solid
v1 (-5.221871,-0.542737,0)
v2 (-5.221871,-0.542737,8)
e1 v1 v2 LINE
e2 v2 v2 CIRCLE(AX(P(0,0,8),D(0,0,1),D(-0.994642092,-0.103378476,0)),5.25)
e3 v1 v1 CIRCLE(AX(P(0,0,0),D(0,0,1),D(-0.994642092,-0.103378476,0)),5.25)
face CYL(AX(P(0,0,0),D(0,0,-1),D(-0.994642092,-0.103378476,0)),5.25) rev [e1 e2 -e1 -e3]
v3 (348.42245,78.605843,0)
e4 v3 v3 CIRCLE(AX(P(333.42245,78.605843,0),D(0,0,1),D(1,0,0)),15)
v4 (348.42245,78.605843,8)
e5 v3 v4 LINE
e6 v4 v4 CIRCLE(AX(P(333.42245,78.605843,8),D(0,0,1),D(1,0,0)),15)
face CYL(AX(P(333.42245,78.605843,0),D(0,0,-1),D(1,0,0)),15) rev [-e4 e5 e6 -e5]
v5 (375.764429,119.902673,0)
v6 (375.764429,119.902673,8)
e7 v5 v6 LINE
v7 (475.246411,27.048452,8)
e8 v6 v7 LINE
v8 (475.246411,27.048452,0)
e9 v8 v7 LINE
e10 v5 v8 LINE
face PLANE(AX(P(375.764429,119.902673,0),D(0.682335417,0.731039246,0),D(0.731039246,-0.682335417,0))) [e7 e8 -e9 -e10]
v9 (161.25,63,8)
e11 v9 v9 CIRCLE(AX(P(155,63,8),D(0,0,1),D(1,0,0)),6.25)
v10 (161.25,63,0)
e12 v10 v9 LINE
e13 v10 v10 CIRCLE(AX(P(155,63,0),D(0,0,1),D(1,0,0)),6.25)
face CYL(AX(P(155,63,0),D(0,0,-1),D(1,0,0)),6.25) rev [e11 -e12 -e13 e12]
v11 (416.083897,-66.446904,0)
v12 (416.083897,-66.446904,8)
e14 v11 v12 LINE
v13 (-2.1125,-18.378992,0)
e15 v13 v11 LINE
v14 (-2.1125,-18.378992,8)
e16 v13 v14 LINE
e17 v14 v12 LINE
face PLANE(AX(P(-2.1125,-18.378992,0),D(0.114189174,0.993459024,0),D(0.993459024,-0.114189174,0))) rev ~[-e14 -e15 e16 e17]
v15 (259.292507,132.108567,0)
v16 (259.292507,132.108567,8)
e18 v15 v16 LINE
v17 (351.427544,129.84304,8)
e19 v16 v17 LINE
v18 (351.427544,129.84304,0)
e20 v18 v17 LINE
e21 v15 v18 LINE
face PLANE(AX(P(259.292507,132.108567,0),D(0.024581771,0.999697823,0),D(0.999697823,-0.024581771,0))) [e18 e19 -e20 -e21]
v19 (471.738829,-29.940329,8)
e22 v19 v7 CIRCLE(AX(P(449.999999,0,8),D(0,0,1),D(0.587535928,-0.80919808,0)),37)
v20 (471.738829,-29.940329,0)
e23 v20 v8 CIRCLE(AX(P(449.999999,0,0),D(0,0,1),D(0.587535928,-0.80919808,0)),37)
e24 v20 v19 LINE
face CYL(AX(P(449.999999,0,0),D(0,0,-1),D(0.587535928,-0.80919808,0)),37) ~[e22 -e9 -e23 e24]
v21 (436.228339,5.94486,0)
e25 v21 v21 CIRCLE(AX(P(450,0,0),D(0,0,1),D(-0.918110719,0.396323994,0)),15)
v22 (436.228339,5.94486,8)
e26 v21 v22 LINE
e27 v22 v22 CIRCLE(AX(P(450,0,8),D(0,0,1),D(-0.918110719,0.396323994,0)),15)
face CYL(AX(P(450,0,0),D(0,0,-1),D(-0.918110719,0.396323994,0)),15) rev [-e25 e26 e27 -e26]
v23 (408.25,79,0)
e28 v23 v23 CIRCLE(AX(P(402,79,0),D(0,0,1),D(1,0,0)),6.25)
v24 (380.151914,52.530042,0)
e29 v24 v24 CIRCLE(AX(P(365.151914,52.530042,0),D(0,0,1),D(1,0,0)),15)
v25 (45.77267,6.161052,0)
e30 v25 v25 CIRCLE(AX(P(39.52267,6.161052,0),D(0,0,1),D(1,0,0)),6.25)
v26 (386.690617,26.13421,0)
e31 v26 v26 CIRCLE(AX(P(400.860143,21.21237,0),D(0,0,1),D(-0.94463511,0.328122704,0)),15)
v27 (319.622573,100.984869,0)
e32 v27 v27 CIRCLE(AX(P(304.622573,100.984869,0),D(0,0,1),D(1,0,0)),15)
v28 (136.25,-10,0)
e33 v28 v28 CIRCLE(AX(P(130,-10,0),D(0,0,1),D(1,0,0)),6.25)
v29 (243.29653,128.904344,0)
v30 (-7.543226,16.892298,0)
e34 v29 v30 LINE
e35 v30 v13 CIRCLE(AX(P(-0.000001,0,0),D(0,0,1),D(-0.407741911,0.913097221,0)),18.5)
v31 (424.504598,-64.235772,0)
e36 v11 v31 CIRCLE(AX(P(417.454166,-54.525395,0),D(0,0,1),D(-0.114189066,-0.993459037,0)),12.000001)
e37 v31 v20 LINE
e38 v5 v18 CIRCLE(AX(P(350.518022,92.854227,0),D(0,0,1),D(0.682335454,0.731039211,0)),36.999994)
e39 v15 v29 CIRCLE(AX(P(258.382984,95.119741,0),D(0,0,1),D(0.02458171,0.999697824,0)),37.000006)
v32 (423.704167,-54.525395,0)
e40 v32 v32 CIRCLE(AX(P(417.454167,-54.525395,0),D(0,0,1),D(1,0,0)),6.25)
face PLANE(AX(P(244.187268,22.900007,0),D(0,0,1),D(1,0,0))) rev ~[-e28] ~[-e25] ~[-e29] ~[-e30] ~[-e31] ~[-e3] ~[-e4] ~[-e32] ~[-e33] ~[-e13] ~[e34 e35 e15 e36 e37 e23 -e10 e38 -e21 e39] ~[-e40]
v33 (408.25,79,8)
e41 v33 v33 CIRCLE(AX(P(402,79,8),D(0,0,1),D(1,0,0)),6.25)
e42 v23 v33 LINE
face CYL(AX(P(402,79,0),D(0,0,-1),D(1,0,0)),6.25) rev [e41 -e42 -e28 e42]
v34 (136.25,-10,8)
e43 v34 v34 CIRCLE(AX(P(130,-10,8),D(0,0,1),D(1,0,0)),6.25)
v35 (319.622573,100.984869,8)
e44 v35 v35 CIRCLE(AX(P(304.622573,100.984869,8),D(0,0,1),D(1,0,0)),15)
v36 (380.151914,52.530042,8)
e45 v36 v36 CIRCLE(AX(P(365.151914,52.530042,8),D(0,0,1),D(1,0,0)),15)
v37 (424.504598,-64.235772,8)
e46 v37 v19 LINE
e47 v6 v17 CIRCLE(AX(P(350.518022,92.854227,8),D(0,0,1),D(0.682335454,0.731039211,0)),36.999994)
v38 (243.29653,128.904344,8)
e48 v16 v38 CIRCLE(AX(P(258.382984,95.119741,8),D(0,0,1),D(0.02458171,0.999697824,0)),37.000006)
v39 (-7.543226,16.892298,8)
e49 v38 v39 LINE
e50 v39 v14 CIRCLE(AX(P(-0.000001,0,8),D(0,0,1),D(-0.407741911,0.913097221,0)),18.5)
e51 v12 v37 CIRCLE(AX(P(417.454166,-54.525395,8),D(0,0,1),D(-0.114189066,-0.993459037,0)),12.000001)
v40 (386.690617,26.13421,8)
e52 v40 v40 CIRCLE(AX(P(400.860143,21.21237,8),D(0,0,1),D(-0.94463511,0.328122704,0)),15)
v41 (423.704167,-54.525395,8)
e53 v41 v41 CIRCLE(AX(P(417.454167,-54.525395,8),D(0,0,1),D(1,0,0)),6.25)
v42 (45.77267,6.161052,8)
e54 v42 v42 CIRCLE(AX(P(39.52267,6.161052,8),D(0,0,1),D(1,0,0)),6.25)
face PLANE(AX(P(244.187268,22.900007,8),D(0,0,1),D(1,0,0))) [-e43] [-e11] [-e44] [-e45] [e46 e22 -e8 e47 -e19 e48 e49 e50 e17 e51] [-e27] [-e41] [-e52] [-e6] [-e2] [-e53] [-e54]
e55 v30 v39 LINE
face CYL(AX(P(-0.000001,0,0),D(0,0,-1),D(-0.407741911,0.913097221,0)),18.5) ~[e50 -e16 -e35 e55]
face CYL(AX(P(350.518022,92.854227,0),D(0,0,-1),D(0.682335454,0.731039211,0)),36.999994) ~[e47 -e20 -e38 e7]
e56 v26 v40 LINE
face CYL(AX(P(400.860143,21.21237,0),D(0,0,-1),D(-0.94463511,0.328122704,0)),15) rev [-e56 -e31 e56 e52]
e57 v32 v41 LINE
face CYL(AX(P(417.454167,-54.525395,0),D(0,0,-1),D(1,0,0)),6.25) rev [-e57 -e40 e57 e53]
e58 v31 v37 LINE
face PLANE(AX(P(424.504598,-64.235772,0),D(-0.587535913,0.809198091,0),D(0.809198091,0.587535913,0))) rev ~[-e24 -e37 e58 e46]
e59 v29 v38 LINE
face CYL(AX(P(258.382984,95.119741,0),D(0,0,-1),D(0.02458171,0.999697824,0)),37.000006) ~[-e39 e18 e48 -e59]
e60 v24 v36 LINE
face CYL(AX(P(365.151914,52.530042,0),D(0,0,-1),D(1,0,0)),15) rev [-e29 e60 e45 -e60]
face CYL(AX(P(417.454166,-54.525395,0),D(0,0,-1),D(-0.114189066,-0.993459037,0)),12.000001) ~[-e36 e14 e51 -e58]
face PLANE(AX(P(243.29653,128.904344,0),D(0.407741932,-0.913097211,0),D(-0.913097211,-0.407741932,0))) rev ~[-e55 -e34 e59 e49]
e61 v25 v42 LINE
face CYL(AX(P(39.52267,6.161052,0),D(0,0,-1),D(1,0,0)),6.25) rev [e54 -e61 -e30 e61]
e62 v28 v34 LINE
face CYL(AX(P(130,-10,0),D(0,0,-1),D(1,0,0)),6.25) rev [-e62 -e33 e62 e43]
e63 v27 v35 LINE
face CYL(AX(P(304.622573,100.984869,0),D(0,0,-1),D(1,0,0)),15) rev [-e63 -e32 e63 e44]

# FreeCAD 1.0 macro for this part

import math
import FreeCAD as App
import Part
import Sketcher
from FreeCAD import Vector
Q = App.Units.Quantity

doc = App.newDocument("Part")
body = doc.addObject("PartDesign::Body", "Body")

# Sketch on XY plane
sketch1 = body.newObject("Sketcher::SketchObject", "Sketch")
sketch1.AttachmentSupport = (doc.getObject("XY_Plane"), [""])
sketch1.MapMode = "FlatFace"
sketch1.addGeometry([
    Part.ArcOfCircle(Part.Circle(Vector(0, 0, 0), Vector(0, 0, 1), 18), math.radians(114), math.radians(263)),  # 0
    Part.LineSegment(Vector(-2, -18, 0), Vector(416, -66, 0)),  # 1
    Part.ArcOfCircle(Part.Circle(Vector(417, -55, 0), Vector(0, 0, 1), 12), math.radians(-97), math.radians(-54)),  # 2
    Part.LineSegment(Vector(425, -64, 0), Vector(472, -30, 0)),  # 3
    Part.ArcOfCircle(Part.Circle(Vector(450, 0, 0), Vector(0, 0, 1), 37), math.radians(-54), math.radians(47)),  # 4
    Part.LineSegment(Vector(475, 27, 0), Vector(376, 120, 0)),  # 5
    Part.ArcOfCircle(Part.Circle(Vector(351, 93, 0), Vector(0, 0, 1), 37), math.radians(47), math.radians(89)),  # 6
    Part.LineSegment(Vector(351, 130, 0), Vector(259, 132, 0)),  # 7
    Part.ArcOfCircle(Part.Circle(Vector(258, 95, 0), Vector(0, 0, 1), 37), math.radians(89), math.radians(114)),  # 8
    Part.LineSegment(Vector(243, 129, 0), Vector(-8, 17, 0)),  # 9
    Part.Circle(Vector(0, 0, 0), Vector(0, 0, 1), 5),  # 10
    Part.Circle(Vector(40, 6, 0), Vector(0, 0, 1), 6),  # 11
    Part.Circle(Vector(130, -10, 0), Vector(0, 0, 1), 6),  # 12
    Part.Circle(Vector(417, -55, 0), Vector(0, 0, 1), 6),  # 13
    Part.Circle(Vector(450, 0, 0), Vector(0, 0, 1), 15),  # 14
    Part.Circle(Vector(401, 21, 0), Vector(0, 0, 1), 15),  # 15
    Part.Circle(Vector(155, 63, 0), Vector(0, 0, 1), 6),  # 16
    Part.Circle(Vector(365, 53, 0), Vector(0, 0, 1), 15),  # 17
    Part.Circle(Vector(333, 79, 0), Vector(0, 0, 1), 15),  # 18
    Part.Circle(Vector(305, 101, 0), Vector(0, 0, 1), 15),  # 19
    Part.Circle(Vector(402, 79, 0), Vector(0, 0, 1), 6),  # 20
], False)
sketch1.addConstraint([
    Sketcher.Constraint("Tangent", 0, 2, 1, 1),
    Sketcher.Constraint("Tangent", 1, 2, 2, 1),
    Sketcher.Constraint("Tangent", 2, 2, 3, 1),
    Sketcher.Constraint("Tangent", 3, 2, 4, 1),
    Sketcher.Constraint("Tangent", 4, 2, 5, 1),
    Sketcher.Constraint("Tangent", 5, 2, 6, 1),
    Sketcher.Constraint("Tangent", 6, 2, 7, 1),
    Sketcher.Constraint("Tangent", 7, 2, 8, 1),
    Sketcher.Constraint("Tangent", 8, 2, 9, 1),
    Sketcher.Constraint("Tangent", 9, 2, 0, 1),
    Sketcher.Constraint("Coincident", 0, 3, -1, 1),
    Sketcher.Constraint("Coincident", 10, 3, -1, 1),
    Sketcher.Constraint("Coincident", 13, 3, 2, 3),
    Sketcher.Constraint("Coincident", 14, 3, 4, 3),
    Sketcher.Constraint("Equal", 11, 12),
    Sketcher.Constraint("Equal", 12, 13),
    Sketcher.Constraint("Equal", 14, 15),
    Sketcher.Constraint("Equal", 13, 16),
    Sketcher.Constraint("Equal", 15, 17),
    Sketcher.Constraint("Equal", 17, 18),
    Sketcher.Constraint("Equal", 18, 19),
    Sketcher.Constraint("Equal", 16, 20),
    Sketcher.Constraint("PointOnObject", 4, 3, -1),
    Sketcher.Constraint("Diameter", 14, Q("30 mm")),
    Sketcher.Constraint("Radius", 2, Q("12.000001 mm")),
    Sketcher.Constraint("Radius", 4, Q("37 mm")),
    Sketcher.Constraint("Diameter", 10, Q("10.5 mm")),
    Sketcher.Constraint("Diameter", 11, Q("12.5 mm")),
    Sketcher.Constraint("Radius", 0, Q("18.5 mm")),
    Sketcher.Constraint("DistanceX", -1, 1, 4, 3, Q("449.999999 mm")),
    Sketcher.Constraint("DistanceX", -1, 1, 12, 3, Q("130 mm")),
    Sketcher.Constraint("DistanceY", 12, 3, -1, 1, Q("10 mm")),
    Sketcher.Constraint("DistanceX", -1, 1, 16, 3, Q("155 mm")),
    Sketcher.Constraint("DistanceY", -1, 1, 16, 3, Q("63 mm")),
    Sketcher.Constraint("DistanceX", -1, 1, 20, 3, Q("402 mm")),
    Sketcher.Constraint("DistanceY", -1, 1, 20, 3, Q("79 mm")),
    Sketcher.Constraint("Radius", 6, Q("36.999994 mm")),
    Sketcher.Constraint("Radius", 8, Q("37.000006 mm")),
    Sketcher.Constraint("DistanceY", -1, 1, 9, 2, Q("16.892298 mm")),
    Sketcher.Constraint("DistanceY", 17, 3, 8, 3, Q("42.589699 mm")),
    Sketcher.Constraint("DistanceY", 17, 3, 18, 3, Q("26.075801 mm")),
    Sketcher.Constraint("DistanceY", 15, 3, 19, 3, Q("79.7725 mm")),
    Sketcher.Constraint("DistanceX", 1, 2, 2, 2, Q("8.420701 mm")),
    Sketcher.Constraint("DistanceX", 2, 2, 4, 3, Q("25.495401 mm")),
    Sketcher.Constraint("Distance", 9, Q("274.71309 mm")),
    Sketcher.Constraint("DistanceX", -1, 1, 6, 3, Q("350.518022 mm")),
    Sketcher.Constraint("DistanceX", -1, 1, 11, 3, Q("39.52267 mm")),
    Sketcher.Constraint("DistanceY", -1, 1, 11, 3, Q("6.161052 mm")),
    Sketcher.Constraint("DistanceY", -1, 1, 15, 3, Q("21.21237 mm")),
    Sketcher.Constraint("DistanceX", -1, 1, 18, 3, Q("333.42245 mm")),
    Sketcher.Constraint("DistanceX", -1, 1, 4, 2, Q("475.246411 mm")),
    Sketcher.Constraint("DistanceX", 6, 3, 15, 3, Q("50.342122 mm")),
    Sketcher.Constraint("DistanceX", 17, 3, 15, 3, Q("35.70823 mm")),
    Sketcher.Constraint("DistanceX", 8, 3, 19, 3, Q("46.239589 mm")),
])
pad1 = body.newObject("PartDesign::Pad", "Pad")
pad1.Profile = sketch1
pad1.Length = 8

doc.recompute()
